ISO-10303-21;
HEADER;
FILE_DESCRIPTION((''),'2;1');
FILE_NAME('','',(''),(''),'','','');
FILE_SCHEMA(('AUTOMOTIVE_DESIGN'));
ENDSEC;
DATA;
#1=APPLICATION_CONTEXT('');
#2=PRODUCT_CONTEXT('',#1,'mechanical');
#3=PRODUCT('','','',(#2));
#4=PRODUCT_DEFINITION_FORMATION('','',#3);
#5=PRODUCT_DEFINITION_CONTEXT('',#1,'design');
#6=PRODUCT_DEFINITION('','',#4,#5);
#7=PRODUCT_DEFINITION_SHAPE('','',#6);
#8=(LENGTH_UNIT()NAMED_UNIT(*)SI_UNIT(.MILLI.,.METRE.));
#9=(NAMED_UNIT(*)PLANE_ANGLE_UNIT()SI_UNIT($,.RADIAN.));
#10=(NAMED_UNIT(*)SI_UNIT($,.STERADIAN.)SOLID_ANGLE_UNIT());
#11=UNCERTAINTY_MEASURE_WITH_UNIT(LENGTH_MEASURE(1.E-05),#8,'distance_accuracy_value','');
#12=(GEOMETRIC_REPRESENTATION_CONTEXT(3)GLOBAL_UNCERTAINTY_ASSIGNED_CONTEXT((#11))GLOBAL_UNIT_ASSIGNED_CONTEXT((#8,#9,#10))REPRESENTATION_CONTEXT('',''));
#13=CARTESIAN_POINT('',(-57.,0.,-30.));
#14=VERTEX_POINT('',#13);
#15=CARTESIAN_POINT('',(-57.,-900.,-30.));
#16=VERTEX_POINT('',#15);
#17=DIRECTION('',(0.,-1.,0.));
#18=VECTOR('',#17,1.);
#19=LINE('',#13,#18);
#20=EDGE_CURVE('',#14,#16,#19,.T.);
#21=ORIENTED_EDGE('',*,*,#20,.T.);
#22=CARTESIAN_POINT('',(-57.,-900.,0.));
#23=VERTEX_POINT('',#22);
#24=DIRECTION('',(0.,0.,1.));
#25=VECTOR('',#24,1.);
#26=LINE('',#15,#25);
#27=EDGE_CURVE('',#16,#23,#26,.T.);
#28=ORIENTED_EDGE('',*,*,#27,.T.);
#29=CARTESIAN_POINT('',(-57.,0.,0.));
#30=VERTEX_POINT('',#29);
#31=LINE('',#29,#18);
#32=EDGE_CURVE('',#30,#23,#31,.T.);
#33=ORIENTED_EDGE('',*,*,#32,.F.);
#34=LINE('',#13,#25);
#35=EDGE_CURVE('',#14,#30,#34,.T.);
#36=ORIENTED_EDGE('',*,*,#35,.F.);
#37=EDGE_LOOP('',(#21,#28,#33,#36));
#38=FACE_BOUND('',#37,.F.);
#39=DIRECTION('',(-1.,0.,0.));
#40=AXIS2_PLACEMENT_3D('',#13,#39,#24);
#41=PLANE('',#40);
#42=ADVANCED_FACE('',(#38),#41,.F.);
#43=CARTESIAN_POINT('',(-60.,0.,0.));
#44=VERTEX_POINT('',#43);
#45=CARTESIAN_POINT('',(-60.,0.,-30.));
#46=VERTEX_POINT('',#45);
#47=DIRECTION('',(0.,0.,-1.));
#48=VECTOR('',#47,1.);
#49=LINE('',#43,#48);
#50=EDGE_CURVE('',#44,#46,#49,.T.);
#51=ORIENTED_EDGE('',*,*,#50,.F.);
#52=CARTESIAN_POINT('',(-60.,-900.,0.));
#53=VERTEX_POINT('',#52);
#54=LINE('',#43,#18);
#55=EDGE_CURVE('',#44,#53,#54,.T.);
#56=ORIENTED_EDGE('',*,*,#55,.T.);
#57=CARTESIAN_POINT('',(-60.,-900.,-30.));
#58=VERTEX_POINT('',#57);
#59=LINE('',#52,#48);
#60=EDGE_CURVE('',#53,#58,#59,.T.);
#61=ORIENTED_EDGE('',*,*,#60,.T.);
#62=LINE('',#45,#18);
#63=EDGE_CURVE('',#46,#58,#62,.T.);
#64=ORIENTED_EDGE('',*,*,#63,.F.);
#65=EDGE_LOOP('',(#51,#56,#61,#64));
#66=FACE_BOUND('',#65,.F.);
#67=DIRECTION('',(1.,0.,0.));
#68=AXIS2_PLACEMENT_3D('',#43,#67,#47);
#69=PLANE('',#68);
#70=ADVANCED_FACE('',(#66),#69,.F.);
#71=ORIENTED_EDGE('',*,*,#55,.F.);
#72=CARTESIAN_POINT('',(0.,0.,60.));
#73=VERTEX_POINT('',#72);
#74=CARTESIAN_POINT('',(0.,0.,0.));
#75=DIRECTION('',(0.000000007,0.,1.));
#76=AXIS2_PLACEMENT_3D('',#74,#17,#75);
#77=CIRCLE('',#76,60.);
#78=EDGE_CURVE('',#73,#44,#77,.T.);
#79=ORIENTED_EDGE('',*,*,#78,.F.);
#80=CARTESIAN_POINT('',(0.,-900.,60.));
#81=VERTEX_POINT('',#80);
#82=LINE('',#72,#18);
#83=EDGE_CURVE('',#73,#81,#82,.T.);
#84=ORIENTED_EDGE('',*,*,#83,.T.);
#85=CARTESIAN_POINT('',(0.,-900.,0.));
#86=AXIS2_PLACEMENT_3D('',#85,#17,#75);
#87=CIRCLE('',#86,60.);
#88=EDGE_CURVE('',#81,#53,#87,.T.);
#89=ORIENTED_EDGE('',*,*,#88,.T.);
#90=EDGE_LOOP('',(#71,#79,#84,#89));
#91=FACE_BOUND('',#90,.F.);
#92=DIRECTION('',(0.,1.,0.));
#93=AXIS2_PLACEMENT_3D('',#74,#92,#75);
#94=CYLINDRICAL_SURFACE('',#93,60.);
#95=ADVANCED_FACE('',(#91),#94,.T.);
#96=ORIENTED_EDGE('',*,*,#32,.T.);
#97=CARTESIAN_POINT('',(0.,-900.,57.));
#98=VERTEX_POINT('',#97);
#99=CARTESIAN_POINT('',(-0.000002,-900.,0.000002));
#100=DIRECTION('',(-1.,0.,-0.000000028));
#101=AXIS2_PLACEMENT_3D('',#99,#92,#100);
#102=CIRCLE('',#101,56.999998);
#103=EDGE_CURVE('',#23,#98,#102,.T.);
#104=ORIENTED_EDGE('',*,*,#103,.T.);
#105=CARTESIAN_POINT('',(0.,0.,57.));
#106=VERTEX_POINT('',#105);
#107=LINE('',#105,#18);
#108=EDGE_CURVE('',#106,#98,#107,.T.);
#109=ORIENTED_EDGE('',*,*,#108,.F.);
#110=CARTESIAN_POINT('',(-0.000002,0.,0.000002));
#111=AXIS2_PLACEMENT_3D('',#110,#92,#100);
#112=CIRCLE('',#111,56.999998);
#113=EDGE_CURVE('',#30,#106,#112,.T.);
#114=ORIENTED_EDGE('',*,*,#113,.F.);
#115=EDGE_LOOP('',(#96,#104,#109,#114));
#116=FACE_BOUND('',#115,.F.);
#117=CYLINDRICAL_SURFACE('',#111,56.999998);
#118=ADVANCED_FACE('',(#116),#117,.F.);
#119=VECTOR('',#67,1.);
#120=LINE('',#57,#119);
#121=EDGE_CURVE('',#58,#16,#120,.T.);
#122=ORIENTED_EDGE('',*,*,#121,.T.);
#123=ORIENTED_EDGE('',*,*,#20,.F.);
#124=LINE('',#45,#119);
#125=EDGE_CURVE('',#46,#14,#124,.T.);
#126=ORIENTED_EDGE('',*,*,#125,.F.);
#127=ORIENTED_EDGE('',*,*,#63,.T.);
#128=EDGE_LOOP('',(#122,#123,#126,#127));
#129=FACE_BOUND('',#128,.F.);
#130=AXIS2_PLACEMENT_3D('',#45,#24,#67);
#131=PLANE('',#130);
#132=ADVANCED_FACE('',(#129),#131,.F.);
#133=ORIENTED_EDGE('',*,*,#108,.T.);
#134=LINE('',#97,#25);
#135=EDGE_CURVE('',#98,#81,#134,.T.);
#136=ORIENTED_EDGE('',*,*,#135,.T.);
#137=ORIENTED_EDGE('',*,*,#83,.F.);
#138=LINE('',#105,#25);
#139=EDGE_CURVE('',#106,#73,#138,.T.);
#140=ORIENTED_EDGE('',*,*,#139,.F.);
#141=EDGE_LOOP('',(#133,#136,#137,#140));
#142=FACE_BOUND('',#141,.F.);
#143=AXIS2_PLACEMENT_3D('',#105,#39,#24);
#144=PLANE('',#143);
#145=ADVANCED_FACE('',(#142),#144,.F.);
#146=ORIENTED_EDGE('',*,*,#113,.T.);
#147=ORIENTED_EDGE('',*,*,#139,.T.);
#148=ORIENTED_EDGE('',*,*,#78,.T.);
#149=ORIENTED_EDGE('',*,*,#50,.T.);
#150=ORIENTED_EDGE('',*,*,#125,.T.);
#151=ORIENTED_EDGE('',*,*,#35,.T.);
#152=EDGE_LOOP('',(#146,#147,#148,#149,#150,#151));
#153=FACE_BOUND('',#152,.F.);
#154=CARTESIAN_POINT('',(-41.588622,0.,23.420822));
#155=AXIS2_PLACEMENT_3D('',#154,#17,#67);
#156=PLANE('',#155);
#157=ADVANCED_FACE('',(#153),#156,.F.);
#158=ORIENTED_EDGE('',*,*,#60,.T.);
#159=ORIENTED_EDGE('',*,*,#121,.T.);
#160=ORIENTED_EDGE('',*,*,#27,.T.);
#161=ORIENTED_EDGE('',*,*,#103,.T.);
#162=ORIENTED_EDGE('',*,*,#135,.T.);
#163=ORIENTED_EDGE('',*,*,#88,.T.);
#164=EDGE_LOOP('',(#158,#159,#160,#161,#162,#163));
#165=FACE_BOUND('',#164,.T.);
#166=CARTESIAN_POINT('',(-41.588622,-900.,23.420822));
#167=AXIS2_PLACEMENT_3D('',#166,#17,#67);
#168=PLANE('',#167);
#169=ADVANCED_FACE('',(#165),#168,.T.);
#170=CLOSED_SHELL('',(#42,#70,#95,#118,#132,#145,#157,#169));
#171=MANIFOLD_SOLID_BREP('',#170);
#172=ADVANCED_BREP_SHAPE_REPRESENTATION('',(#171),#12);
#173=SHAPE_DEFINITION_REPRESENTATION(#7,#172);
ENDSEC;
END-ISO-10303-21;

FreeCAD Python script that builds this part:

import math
import FreeCAD as App
import Part
import Sketcher

V = App.Vector

doc = App.newDocument("Part")
params = doc.addObject("Spreadsheet::Sheet", "Params")
for row, (alias, value) in enumerate([
    ("sketch1_radius", "60 mm"),
    ("sketch1_radius2", "56.999998 mm"),
    ("sketch1_height", "30 mm"),
    ("pad1_length", "900 mm"),
], start=1):
    params.set(f"A{row}", alias)
    params.set(f"B{row}", "=" + value)
    params.setAlias(f"B{row}", alias)

body = doc.addObject("PartDesign::Body", "Body")

sketch1 = doc.addObject("Sketcher::SketchObject", "Sketch")
body.addObject(sketch1)
sketch1.AttachmentSupport = (doc.XZ_Plane, [""])
sketch1.MapMode = "FlatFace"
sketch1.addGeometry([
    Part.ArcOfCircle(Part.Circle(V(0, 0, 0), V(0, 0, 1), 60), math.radians(90), math.radians(180)),
    Part.LineSegment(V(-60, 0, 0), V(-60, -30, 0)),
    Part.LineSegment(V(-60, -30, 0), V(-57, -30, 0)),
    Part.LineSegment(V(-57, -30, 0), V(-57, 0, 0)),
    Part.ArcOfCircle(Part.Circle(V(-0.000002, 0.000002, 0), V(0, 0, 1), 56.999998), math.radians(89.999998), math.radians(180.000002)),
    Part.LineSegment(V(0, 57, 0), V(0, 60, 0)),
], False)
sketch1.addConstraint([
    Sketcher.Constraint("Tangent", 0, 2, 1, 1),
    Sketcher.Constraint("Coincident", 1, 2, 2, 1),
    Sketcher.Constraint("Coincident", 2, 2, 3, 1),
    Sketcher.Constraint("Tangent", 3, 2, 4, 2),
    Sketcher.Constraint("Coincident", 4, 1, 5, 1),
    Sketcher.Constraint("Coincident", 5, 2, 0, 1),
    Sketcher.Constraint("Vertical", 1),
    Sketcher.Constraint("Horizontal", 2),
    Sketcher.Constraint("Vertical", 3),
    Sketcher.Constraint("Vertical", 5),
    Sketcher.Constraint("Coincident", 0, 3, -1, 1),
    Sketcher.Constraint("Coincident", 4, 3, -1, 1),
    Sketcher.Constraint("PointOnObject", 4, 1, -2),
    Sketcher.Constraint("Radius", 0, 60.0),
    Sketcher.Constraint("Radius", 4, 56.999998),
    Sketcher.Constraint("DistanceY", 1, 2, 1, 1, 30.0),
])
sketch1.setExpression("Constraints[13]", "Params.sketch1_radius")
sketch1.setExpression("Constraints[14]", "Params.sketch1_radius2")
sketch1.setExpression("Constraints[15]", "Params.sketch1_height")
pad1 = doc.addObject("PartDesign::Pad", "Pad")
body.addObject(pad1)
pad1.Profile = sketch1
pad1.setExpression("Length", "Params.pad1_length")

doc.recompute()
